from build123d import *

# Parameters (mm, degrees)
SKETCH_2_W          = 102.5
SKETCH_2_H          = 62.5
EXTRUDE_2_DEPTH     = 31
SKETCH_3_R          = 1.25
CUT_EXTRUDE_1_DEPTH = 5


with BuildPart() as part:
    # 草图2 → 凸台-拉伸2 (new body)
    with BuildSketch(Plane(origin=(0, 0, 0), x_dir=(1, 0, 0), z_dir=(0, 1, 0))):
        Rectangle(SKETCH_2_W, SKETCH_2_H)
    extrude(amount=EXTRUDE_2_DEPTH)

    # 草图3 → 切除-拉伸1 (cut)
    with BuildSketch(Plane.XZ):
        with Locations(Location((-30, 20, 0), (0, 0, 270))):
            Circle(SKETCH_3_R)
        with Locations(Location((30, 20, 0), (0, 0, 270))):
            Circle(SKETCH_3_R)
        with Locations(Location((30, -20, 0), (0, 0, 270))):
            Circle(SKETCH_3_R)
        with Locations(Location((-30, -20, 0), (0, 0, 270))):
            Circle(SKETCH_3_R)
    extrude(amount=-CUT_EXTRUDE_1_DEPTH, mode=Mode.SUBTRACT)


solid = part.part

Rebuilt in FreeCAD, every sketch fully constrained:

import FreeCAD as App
import Part
import Sketcher
from FreeCAD import Vector

doc = App.newDocument("Part")
params = doc.addObject("Spreadsheet::Sheet", "Params")
for row, (alias, value) in enumerate([
    ("sketch1_width", "102.5 mm"),
    ("sketch1_height", "62.5 mm"),
    ("pad1_length", "31 mm"),
    ("sketch2_diameter", "2.5 mm"),
    ("pocket1_length", "5 mm"),
], start=1):
    params.set(f"A{row}", alias)
    params.set(f"B{row}", "=" + value)
    params.setAlias(f"B{row}", alias)

body = doc.addObject("PartDesign::Body", "Body")

sketch1 = body.newObject("Sketcher::SketchObject", "Sketch")
sketch1.AttachmentSupport = (doc.getObject("XZ_Plane"), [""])
sketch1.MapMode = "FlatFace"
sketch1.addGeometry(Part.LineSegment(Vector(-51.25, -31.25, 0), Vector(-51.25, 31.25, 0)), False)
sketch1.addGeometry(Part.LineSegment(Vector(-51.25, 31.25, 0), Vector(51.25, 31.25, 0)), False)
sketch1.addGeometry(Part.LineSegment(Vector(51.25, 31.25, 0), Vector(51.25, -31.25, 0)), False)
sketch1.addGeometry(Part.LineSegment(Vector(51.25, -31.25, 0), Vector(-51.25, -31.25, 0)), False)
sketch1.addConstraint(Sketcher.Constraint("Coincident", 0, 2, 1, 1))
sketch1.addConstraint(Sketcher.Constraint("Coincident", 1, 2, 2, 1))
sketch1.addConstraint(Sketcher.Constraint("Coincident", 2, 2, 3, 1))
sketch1.addConstraint(Sketcher.Constraint("Coincident", 3, 2, 0, 1))
sketch1.addConstraint(Sketcher.Constraint("Vertical", 0))
sketch1.addConstraint(Sketcher.Constraint("Horizontal", 1))
sketch1.addConstraint(Sketcher.Constraint("Vertical", 2))
sketch1.addConstraint(Sketcher.Constraint("Horizontal", 3))
sketch1.addConstraint(Sketcher.Constraint("Symmetric", 0, 2, 2, 2, -1, 1))
sketch1.addConstraint(Sketcher.Constraint("DistanceX", 1, 1, 1, 2, 102.5))
sketch1.addConstraint(Sketcher.Constraint("DistanceY", 0, 1, 0, 2, 62.5))
sketch1.setExpression("Constraints[9]", "Params.sketch1_width")
sketch1.setExpression("Constraints[10]", "Params.sketch1_height")
pad1 = body.newObject("PartDesign::Pad", "Pad")
pad1.Profile = sketch1
pad1.setExpression("Length", "Params.pad1_length")
pad1.Reversed = True

sketch2 = body.newObject("Sketcher::SketchObject", "Sketch001")
sketch2.AttachmentSupport = (doc.getObject("XZ_Plane"), [""])
sketch2.MapMode = "FlatFace"
sketch2.addGeometry(Part.Circle(Vector(-30, 20, 0), Vector(0, 0, 1), 1.25), False)
sketch2.addGeometry(Part.Circle(Vector(30, 20, 0), Vector(0, 0, 1), 1.25), False)
sketch2.addGeometry(Part.Circle(Vector(30, -20, 0), Vector(0, 0, 1), 1.25), False)
sketch2.addGeometry(Part.Circle(Vector(-30, -20, 0), Vector(0, 0, 1), 1.25), False)
sketch2.addConstraint(Sketcher.Constraint("Equal", 0, 1))
sketch2.addConstraint(Sketcher.Constraint("Equal", 1, 2))
sketch2.addConstraint(Sketcher.Constraint("Equal", 2, 3))
sketch2.addConstraint(Sketcher.Constraint("Symmetric", 0, 3, 2, 3, -1, 1))
sketch2.addConstraint(Sketcher.Constraint("Symmetric", 1, 3, 3, 3, -1, 1))
sketch2.addConstraint(Sketcher.Constraint("Symmetric", 0, 3, 1, 3, -2))
sketch2.addConstraint(Sketcher.Constraint("Diameter", 0, 2.5))
sketch2.addConstraint(Sketcher.Constraint("DistanceX", 0, 3, -1, 1, 30.0))
sketch2.addConstraint(Sketcher.Constraint("DistanceY", -1, 1, 0, 3, 20.0))
sketch2.setExpression("Constraints[6]", "Params.sketch2_diameter")
pocket1 = body.newObject("PartDesign::Pocket", "Pocket")
pocket1.Profile = sketch2
pocket1.setExpression("Length", "Params.pocket1_length")

doc.recompute()
